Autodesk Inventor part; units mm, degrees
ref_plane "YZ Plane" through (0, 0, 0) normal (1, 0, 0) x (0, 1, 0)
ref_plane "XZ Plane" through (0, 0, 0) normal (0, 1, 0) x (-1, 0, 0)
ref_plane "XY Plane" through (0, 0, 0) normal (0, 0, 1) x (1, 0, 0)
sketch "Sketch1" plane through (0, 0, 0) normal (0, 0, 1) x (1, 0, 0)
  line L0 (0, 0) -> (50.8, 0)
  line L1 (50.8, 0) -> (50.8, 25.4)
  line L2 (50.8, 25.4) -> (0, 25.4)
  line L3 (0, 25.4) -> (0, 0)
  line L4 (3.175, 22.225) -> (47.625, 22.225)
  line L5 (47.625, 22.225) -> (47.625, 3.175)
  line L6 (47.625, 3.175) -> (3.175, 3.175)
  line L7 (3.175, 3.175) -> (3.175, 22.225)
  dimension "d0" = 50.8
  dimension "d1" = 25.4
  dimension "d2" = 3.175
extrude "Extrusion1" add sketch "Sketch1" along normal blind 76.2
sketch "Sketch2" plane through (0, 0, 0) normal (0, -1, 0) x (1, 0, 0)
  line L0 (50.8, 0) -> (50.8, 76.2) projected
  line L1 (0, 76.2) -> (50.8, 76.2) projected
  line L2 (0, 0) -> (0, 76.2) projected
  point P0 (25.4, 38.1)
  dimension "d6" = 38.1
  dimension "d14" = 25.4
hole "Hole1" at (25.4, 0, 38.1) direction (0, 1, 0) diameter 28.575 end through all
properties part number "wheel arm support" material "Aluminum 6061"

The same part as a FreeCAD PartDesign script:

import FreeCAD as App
import Part
import Sketcher
from FreeCAD import Vector
Q = App.Units.Quantity

doc = App.newDocument("Part")
body = doc.addObject("PartDesign::Body", "Body")

sketch1 = doc.addObject("Sketcher::SketchObject", "Sketch")
body.addObject(sketch1)
sketch1.AttachmentSupport = (doc.XY_Plane, [""])
sketch1.MapMode = "FlatFace"
sketch1.addGeometry(Part.LineSegment(Vector(0, 25, 0), Vector(0, 0, 0)), False)
sketch1.addGeometry(Part.LineSegment(Vector(0, 0, 0), Vector(51, 0, 0)), False)
sketch1.addGeometry(Part.LineSegment(Vector(51, 0, 0), Vector(51, 25, 0)), False)
sketch1.addGeometry(Part.LineSegment(Vector(51, 25, 0), Vector(0, 25, 0)), False)
sketch1.addGeometry(Part.LineSegment(Vector(3, 3, 0), Vector(3, 22, 0)), False)
sketch1.addGeometry(Part.LineSegment(Vector(3, 22, 0), Vector(48, 22, 0)), False)
sketch1.addGeometry(Part.LineSegment(Vector(48, 22, 0), Vector(48, 3, 0)), False)
sketch1.addGeometry(Part.LineSegment(Vector(48, 3, 0), Vector(3, 3, 0)), False)
sketch1.addConstraint(Sketcher.Constraint("Coincident", 0, 2, 1, 1))
sketch1.addConstraint(Sketcher.Constraint("Coincident", 1, 2, 2, 1))
sketch1.addConstraint(Sketcher.Constraint("Coincident", 2, 2, 3, 1))
sketch1.addConstraint(Sketcher.Constraint("Coincident", 3, 2, 0, 1))
sketch1.addConstraint(Sketcher.Constraint("Coincident", 4, 2, 5, 1))
sketch1.addConstraint(Sketcher.Constraint("Coincident", 5, 2, 6, 1))
sketch1.addConstraint(Sketcher.Constraint("Coincident", 6, 2, 7, 1))
sketch1.addConstraint(Sketcher.Constraint("Coincident", 7, 2, 4, 1))
sketch1.addConstraint(Sketcher.Constraint("Vertical", 0))
sketch1.addConstraint(Sketcher.Constraint("Horizontal", 1))
sketch1.addConstraint(Sketcher.Constraint("Vertical", 2))
sketch1.addConstraint(Sketcher.Constraint("Horizontal", 3))
sketch1.addConstraint(Sketcher.Constraint("Vertical", 4))
sketch1.addConstraint(Sketcher.Constraint("Horizontal", 5))
sketch1.addConstraint(Sketcher.Constraint("Vertical", 6))
sketch1.addConstraint(Sketcher.Constraint("Horizontal", 7))
sketch1.addConstraint(Sketcher.Constraint("Coincident", 0, 2, -1, 1))
sketch1.addConstraint(Sketcher.Constraint("DistanceX", 1, 1, 1, 2, Q("2 in")))
sketch1.addConstraint(Sketcher.Constraint("DistanceY", 0, 2, 0, 1, Q("1 in")))
sketch1.addConstraint(Sketcher.Constraint("DistanceX", -1, 1, 4, 2, Q("0.125 in")))
sketch1.addConstraint(Sketcher.Constraint("DistanceY", -1, 1, 6, 2, Q("0.125 in")))
sketch1.addConstraint(Sketcher.Constraint("DistanceY", 4, 2, 3, 2, Q("0.125 in")))
sketch1.addConstraint(Sketcher.Constraint("DistanceX", 5, 2, 2, 2, Q("0.125 in")))
pad1 = doc.addObject("PartDesign::Pad", "Pad")
body.addObject(pad1)
pad1.Profile = sketch1
pad1.Length = Q("3 in")

sketch2 = doc.addObject("Sketcher::SketchObject", "Sketch001")
body.addObject(sketch2)
sketch2.AttachmentSupport = (doc.XZ_Plane, [""])
sketch2.MapMode = "FlatFace"
sketch2.addGeometry(Part.Circle(Vector(25, 38, 0), Vector(0, 0, 1), 14), False)
sketch2.addConstraint(Sketcher.Constraint("Diameter", 0, Q("1.125 in")))
sketch2.addConstraint(Sketcher.Constraint("DistanceX", -1, 1, 0, 3, Q("1 in")))
sketch2.addConstraint(Sketcher.Constraint("DistanceY", -1, 1, 0, 3, Q("1.5 in")))
doc.recompute()
hole = doc.addObject("PartDesign::Hole", "Hole")
body.addObject(hole)
hole.Profile = sketch2
hole.ThreadType = "None"
hole.Diameter = Q("1.125 in")
hole.DepthType = "ThroughAll"

doc.recompute()
